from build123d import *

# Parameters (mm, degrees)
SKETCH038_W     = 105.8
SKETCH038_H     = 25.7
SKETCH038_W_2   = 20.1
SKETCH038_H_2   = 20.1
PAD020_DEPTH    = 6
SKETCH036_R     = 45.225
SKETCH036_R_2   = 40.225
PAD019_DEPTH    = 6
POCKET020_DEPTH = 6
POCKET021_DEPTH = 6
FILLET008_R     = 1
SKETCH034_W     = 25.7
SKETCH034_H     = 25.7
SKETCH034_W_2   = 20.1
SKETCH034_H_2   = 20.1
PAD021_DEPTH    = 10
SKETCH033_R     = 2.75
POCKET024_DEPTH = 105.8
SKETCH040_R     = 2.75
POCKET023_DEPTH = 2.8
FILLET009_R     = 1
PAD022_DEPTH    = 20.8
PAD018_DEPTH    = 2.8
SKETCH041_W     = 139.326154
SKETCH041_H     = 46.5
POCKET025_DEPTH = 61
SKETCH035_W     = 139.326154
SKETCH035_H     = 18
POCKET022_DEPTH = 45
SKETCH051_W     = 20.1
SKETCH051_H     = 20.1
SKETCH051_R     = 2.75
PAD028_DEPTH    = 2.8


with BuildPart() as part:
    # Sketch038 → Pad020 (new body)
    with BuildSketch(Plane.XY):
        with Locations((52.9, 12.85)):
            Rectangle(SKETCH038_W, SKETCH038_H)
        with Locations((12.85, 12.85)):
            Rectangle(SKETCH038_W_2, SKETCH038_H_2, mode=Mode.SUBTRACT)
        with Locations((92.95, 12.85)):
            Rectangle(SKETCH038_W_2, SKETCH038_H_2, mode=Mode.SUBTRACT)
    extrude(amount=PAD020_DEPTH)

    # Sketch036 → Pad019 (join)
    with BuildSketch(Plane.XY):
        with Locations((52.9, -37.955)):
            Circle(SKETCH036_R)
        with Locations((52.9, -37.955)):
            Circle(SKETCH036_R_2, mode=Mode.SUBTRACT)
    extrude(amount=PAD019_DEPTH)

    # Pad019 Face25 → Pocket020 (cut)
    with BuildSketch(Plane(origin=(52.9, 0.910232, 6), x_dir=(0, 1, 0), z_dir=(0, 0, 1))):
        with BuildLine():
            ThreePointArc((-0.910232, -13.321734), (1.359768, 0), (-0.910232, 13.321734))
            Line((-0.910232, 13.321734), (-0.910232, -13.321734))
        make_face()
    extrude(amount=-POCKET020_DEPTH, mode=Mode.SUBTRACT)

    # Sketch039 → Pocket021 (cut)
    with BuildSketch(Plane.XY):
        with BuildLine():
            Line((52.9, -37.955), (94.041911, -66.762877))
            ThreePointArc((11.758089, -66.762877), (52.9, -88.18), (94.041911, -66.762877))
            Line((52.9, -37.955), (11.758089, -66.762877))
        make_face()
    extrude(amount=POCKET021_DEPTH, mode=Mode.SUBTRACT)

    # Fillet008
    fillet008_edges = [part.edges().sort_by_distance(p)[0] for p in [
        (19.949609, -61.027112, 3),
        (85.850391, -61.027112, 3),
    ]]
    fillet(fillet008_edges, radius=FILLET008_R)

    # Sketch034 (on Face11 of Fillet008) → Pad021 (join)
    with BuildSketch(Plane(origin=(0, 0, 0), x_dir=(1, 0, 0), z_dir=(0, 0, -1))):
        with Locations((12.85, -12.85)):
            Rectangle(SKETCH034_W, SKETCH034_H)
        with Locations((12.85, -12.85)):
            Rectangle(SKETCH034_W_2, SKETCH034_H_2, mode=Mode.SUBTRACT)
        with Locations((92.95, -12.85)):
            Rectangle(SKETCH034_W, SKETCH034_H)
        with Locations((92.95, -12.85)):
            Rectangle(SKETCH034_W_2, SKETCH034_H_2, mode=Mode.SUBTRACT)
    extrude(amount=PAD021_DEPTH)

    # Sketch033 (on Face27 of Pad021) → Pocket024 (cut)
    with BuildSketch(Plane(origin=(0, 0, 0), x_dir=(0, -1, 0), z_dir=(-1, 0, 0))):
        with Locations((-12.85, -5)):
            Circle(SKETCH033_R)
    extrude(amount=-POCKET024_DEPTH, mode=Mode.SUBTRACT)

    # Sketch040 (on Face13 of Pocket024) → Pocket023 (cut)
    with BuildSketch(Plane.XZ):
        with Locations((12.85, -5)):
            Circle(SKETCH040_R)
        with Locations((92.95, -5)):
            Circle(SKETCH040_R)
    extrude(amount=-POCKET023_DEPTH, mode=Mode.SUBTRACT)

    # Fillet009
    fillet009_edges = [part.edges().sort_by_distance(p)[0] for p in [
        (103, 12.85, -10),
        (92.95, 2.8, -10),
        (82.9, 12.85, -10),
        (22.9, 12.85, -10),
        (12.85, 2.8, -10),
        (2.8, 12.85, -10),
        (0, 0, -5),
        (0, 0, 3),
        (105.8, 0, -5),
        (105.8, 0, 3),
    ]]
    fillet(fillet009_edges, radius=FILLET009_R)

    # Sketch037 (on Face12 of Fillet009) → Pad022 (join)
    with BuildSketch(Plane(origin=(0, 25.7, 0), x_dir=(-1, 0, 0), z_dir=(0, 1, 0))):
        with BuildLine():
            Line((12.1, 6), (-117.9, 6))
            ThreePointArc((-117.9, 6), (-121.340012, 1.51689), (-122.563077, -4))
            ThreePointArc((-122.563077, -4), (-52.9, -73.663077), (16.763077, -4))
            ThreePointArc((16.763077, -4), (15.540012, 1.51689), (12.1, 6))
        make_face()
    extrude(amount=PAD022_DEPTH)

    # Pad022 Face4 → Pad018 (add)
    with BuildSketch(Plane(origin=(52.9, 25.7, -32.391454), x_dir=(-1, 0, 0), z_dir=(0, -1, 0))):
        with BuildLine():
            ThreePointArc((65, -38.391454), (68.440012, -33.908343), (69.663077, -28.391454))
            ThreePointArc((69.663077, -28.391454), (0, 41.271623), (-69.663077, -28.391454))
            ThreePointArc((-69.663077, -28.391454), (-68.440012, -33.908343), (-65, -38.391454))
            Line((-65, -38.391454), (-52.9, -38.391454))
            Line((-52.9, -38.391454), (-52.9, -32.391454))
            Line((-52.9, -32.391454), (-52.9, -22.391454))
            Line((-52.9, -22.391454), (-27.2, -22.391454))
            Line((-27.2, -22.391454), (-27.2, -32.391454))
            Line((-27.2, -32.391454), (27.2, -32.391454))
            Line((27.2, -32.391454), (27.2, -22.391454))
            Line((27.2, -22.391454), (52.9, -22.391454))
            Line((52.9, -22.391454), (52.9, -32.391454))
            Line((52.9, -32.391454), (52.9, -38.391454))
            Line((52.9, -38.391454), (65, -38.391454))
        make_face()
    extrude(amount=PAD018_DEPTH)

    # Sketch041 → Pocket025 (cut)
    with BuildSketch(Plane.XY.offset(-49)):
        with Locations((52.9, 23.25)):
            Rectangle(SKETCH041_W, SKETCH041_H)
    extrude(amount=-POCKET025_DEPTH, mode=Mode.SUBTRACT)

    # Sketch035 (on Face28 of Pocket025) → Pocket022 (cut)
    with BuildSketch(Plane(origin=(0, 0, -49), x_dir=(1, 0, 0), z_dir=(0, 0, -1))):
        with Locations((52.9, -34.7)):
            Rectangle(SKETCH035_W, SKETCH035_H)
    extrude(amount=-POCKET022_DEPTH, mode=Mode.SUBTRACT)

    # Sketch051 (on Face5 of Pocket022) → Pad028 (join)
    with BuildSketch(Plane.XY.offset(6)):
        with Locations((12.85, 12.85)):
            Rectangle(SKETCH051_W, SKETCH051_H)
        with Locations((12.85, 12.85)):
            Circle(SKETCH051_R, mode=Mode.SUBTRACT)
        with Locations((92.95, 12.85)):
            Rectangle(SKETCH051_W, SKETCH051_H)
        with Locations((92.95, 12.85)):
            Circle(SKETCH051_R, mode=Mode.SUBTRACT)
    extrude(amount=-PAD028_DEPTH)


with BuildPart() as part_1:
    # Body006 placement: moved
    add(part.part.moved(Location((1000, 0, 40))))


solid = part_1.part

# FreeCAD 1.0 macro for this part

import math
import FreeCAD as App
import Part
import Sketcher

V = App.Vector
Q = App.Units.Quantity


def edges_at(feature, points):
    """Names of the edges that pass closest to the given points."""
    edges = feature.Shape.Edges
    near = lambda p: min(range(len(edges)), key=lambda i: edges[i].distToShape(Part.Vertex(*p))[0])
    return sorted({f"Edge{near(p) + 1}" for p in points})

doc = App.newDocument("Part")
body = doc.addObject("PartDesign::Body", "Body")

# Sketch on XY plane
sketch1 = body.newObject("Sketcher::SketchObject", "Sketch")
sketch1.AttachmentSupport = (doc.getObject("XY_Plane"), [""])
sketch1.MapMode = "FlatFace"
sketch1.addGeometry([
    Part.LineSegment(V(0, 26, 0), V(0, 0, 0)),  # 0
    Part.LineSegment(V(0, 0, 0), V(106, 0, 0)),  # 1
    Part.LineSegment(V(106, 0, 0), V(106, 26, 0)),  # 2
    Part.LineSegment(V(106, 26, 0), V(0, 26, 0)),  # 3
    Part.LineSegment(V(23, 3, 0), V(3, 3, 0)),  # 4
    Part.LineSegment(V(3, 3, 0), V(3, 23, 0)),  # 5
    Part.LineSegment(V(3, 23, 0), V(23, 23, 0)),  # 6
    Part.LineSegment(V(23, 23, 0), V(23, 3, 0)),  # 7
    Part.LineSegment(V(103, 3, 0), V(83, 3, 0)),  # 8
    Part.LineSegment(V(83, 3, 0), V(83, 23, 0)),  # 9
    Part.LineSegment(V(83, 23, 0), V(103, 23, 0)),  # 10
    Part.LineSegment(V(103, 23, 0), V(103, 3, 0)),  # 11
], False)
sketch1.addConstraint([
    Sketcher.Constraint("Coincident", 0, 2, 1, 1),
    Sketcher.Constraint("Coincident", 1, 2, 2, 1),
    Sketcher.Constraint("Coincident", 2, 2, 3, 1),
    Sketcher.Constraint("Coincident", 3, 2, 0, 1),
    Sketcher.Constraint("Coincident", 4, 2, 5, 1),
    Sketcher.Constraint("Coincident", 5, 2, 6, 1),
    Sketcher.Constraint("Coincident", 6, 2, 7, 1),
    Sketcher.Constraint("Coincident", 7, 2, 4, 1),
    Sketcher.Constraint("Coincident", 8, 2, 9, 1),
    Sketcher.Constraint("Coincident", 9, 2, 10, 1),
    Sketcher.Constraint("Coincident", 10, 2, 11, 1),
    Sketcher.Constraint("Coincident", 11, 2, 8, 1),
    Sketcher.Constraint("Vertical", 0),
    Sketcher.Constraint("Horizontal", 1),
    Sketcher.Constraint("Vertical", 2),
    Sketcher.Constraint("Horizontal", 3),
    Sketcher.Constraint("Horizontal", 4),
    Sketcher.Constraint("Vertical", 5),
    Sketcher.Constraint("Horizontal", 6),
    Sketcher.Constraint("Vertical", 7),
    Sketcher.Constraint("Horizontal", 8),
    Sketcher.Constraint("Vertical", 9),
    Sketcher.Constraint("Horizontal", 10),
    Sketcher.Constraint("Vertical", 11),
    Sketcher.Constraint("Coincident", 0, 2, -1, 1),
    Sketcher.Constraint("Horizontal", 7, 2, 8, 2),
    Sketcher.Constraint("Horizontal", 6, 2, 9, 2),
    Sketcher.Constraint("Equal", 6, 8),
    Sketcher.Constraint("Equal", 10, 5),
    Sketcher.Constraint("DistanceX", 1, 1, 1, 2, Q("105.8 mm")),
    Sketcher.Constraint("DistanceX", 4, 2, 4, 1, Q("20.1 mm")),
    Sketcher.Constraint("DistanceY", 0, 2, 0, 1, Q("25.7 mm")),
    Sketcher.Constraint("DistanceX", -1, 1, 10, 2, Q("103 mm")),
    Sketcher.Constraint("DistanceX", 4, 2, 1, 2, Q("103 mm")),
    Sketcher.Constraint("DistanceY", -1, 1, 4, 2, Q("2.8 mm")),
])
pad1 = body.newObject("PartDesign::Pad", "Pad")
pad1.Profile = sketch1
pad1.Length = 6

# Sketch on XY plane
sketch2 = body.newObject("Sketcher::SketchObject", "Sketch001")
sketch2.AttachmentSupport = (doc.getObject("XY_Plane"), [""])
sketch2.MapMode = "FlatFace"
sketch2.addGeometry([
    Part.Circle(V(53, -38, 0), V(0, 0, 1), 45),
    Part.Circle(V(53, -38, 0), V(0, 0, 1), 40),
], False)
sketch2.addConstraint([
    Sketcher.Constraint("Coincident", 1, 3, 0, 3),
    Sketcher.Constraint("Diameter", 0, Q("90.45 mm")),
    Sketcher.Constraint("Diameter", 1, Q("80.45 mm")),
    Sketcher.Constraint("DistanceX", -1, 1, 0, 3, Q("52.9 mm")),
    Sketcher.Constraint("DistanceY", 0, 3, -1, 1, Q("37.955 mm")),
])
pad2 = body.newObject("PartDesign::Pad", "Pad001")
pad2.Profile = sketch2
pad2.Length = 6

# Sketch on XY plane
sketch3 = body.newObject("Sketcher::SketchObject", "Sketch002")
sketch3.AttachmentSupport = (doc.getObject("XY_Plane"), [""])
sketch3.MapMode = "FlatFace"
sketch3.AttachmentOffset = App.Placement(V(0, 0, 6), App.Rotation())
sketch3.addGeometry([
    Part.ArcOfCircle(Part.Circle(V(53, -38, 0), V(0, 0, 1), 40), math.radians(71), math.radians(109)),
    Part.LineSegment(V(40, 0, 0), V(66, 0, 0)),
], False)
sketch3.addConstraint([
    Sketcher.Constraint("Coincident", 0, 1, 1, 2),
    Sketcher.Constraint("Coincident", 1, 1, 0, 2),
    Sketcher.Constraint("Horizontal", 1),
    Sketcher.Constraint("PointOnObject", 0, 1, -1),
    Sketcher.Constraint("Radius", 0, Q("40.224999 mm")),
    Sketcher.Constraint("DistanceX", -1, 1, 0, 3, Q("52.9 mm")),
    Sketcher.Constraint("DistanceY", 0, 3, -1, 1, Q("37.954999 mm")),
])
pocket1 = body.newObject("PartDesign::Pocket", "Pocket")
pocket1.Profile = sketch3
pocket1.Length = 6

# Sketch on XY plane
sketch4 = body.newObject("Sketcher::SketchObject", "Sketch003")
sketch4.AttachmentSupport = (doc.getObject("XY_Plane"), [""])
sketch4.MapMode = "FlatFace"
sketch4.addGeometry([
    Part.LineSegment(V(94, -67, 0), V(53, -38, 0)),
    Part.LineSegment(V(53, -38, 0), V(12, -67, 0)),
    Part.ArcOfCircle(Part.Circle(V(53, -38, 0), V(0, 0, 1), 50), math.radians(-145), math.radians(-35)),
], False)
sketch4.addConstraint([
    Sketcher.Constraint("Coincident", 0, 2, 1, 1),
    Sketcher.Constraint("Coincident", 1, 2, 2, 1),
    Sketcher.Constraint("Coincident", 2, 2, 0, 1),
    Sketcher.Constraint("Coincident", 0, 2, 2, 3),
    Sketcher.Constraint("Horizontal", 1, 2, 2, 2),
    Sketcher.Constraint("Angle", 0, Q("144.999999 deg")),
    Sketcher.Constraint("Radius", 2, Q("50.225 mm")),
    Sketcher.Constraint("DistanceX", -1, 1, 2, 3, Q("52.9 mm")),
    Sketcher.Constraint("DistanceY", 2, 3, -1, 1, Q("37.955 mm")),
])
pocket2 = body.newObject("PartDesign::Pocket", "Pocket001")
pocket2.Profile = sketch4
pocket2.Length = 6
pocket2.Reversed = True
doc.recompute()

fillet = body.newObject("PartDesign::Fillet", "Fillet")
fillet.Base = (pocket2, edges_at(pocket2, [(19.95, -61.027, 3), (85.85, -61.027, 3)]))
fillet.Radius = 1

# Sketch on XY plane
sketch5 = body.newObject("Sketcher::SketchObject", "Sketch004")
sketch5.AttachmentSupport = (doc.getObject("XY_Plane"), [""])
sketch5.MapMode = "FlatFace"
sketch5.addGeometry([
    Part.LineSegment(V(0, 0, 0), V(0, 26, 0)),  # 0
    Part.LineSegment(V(0, 26, 0), V(26, 26, 0)),  # 1
    Part.LineSegment(V(26, 26, 0), V(26, 0, 0)),  # 2
    Part.LineSegment(V(26, 0, 0), V(0, 0, 0)),  # 3
    Part.LineSegment(V(23, 23, 0), V(3, 23, 0)),  # 4
    Part.LineSegment(V(3, 23, 0), V(3, 3, 0)),  # 5
    Part.LineSegment(V(3, 3, 0), V(23, 3, 0)),  # 6
    Part.LineSegment(V(23, 3, 0), V(23, 23, 0)),  # 7
    Part.LineSegment(V(80, 0, 0), V(80, 26, 0)),  # 8
    Part.LineSegment(V(80, 26, 0), V(106, 26, 0)),  # 9
    Part.LineSegment(V(106, 26, 0), V(106, 0, 0)),  # 10
    Part.LineSegment(V(106, 0, 0), V(80, 0, 0)),  # 11
    Part.LineSegment(V(103, 23, 0), V(83, 23, 0)),  # 12
    Part.LineSegment(V(83, 23, 0), V(83, 3, 0)),  # 13
    Part.LineSegment(V(83, 3, 0), V(103, 3, 0)),  # 14
    Part.LineSegment(V(103, 3, 0), V(103, 23, 0)),  # 15
], False)
sketch5.addConstraint([
    Sketcher.Constraint("Coincident", 0, 2, 1, 1),
    Sketcher.Constraint("Coincident", 1, 2, 2, 1),
    Sketcher.Constraint("Coincident", 2, 2, 3, 1),
    Sketcher.Constraint("Coincident", 3, 2, 0, 1),
    Sketcher.Constraint("Coincident", 4, 2, 5, 1),
    Sketcher.Constraint("Coincident", 5, 2, 6, 1),
    Sketcher.Constraint("Coincident", 6, 2, 7, 1),
    Sketcher.Constraint("Coincident", 7, 2, 4, 1),
    Sketcher.Constraint("Coincident", 8, 2, 9, 1),
    Sketcher.Constraint("Coincident", 9, 2, 10, 1),
    Sketcher.Constraint("Coincident", 10, 2, 11, 1),
    Sketcher.Constraint("Coincident", 11, 2, 8, 1),
    Sketcher.Constraint("Coincident", 12, 2, 13, 1),
    Sketcher.Constraint("Coincident", 13, 2, 14, 1),
    Sketcher.Constraint("Coincident", 14, 2, 15, 1),
    Sketcher.Constraint("Coincident", 15, 2, 12, 1),
    Sketcher.Constraint("Vertical", 0),
    Sketcher.Constraint("Horizontal", 1),
    Sketcher.Constraint("Vertical", 2),
    Sketcher.Constraint("Horizontal", 3),
    Sketcher.Constraint("Horizontal", 4),
    Sketcher.Constraint("Vertical", 5),
    Sketcher.Constraint("Horizontal", 6),
    Sketcher.Constraint("Vertical", 7),
    Sketcher.Constraint("Vertical", 8),
    Sketcher.Constraint("Horizontal", 9),
    Sketcher.Constraint("Vertical", 10),
    Sketcher.Constraint("Horizontal", 11),
    Sketcher.Constraint("Horizontal", 12),
    Sketcher.Constraint("Vertical", 13),
    Sketcher.Constraint("Horizontal", 14),
    Sketcher.Constraint("Vertical", 15),
    Sketcher.Constraint("Coincident", 3, 2, -1, 1),
    Sketcher.Constraint("PointOnObject", 10, 2, -1),
    Sketcher.Constraint("Horizontal", 1, 2, 8, 2),
    Sketcher.Constraint("Horizontal", 7, 2, 12, 2),
    Sketcher.Constraint("Horizontal", 6, 2, 13, 2),
    Sketcher.Constraint("Equal", 3, 9),
    Sketcher.Constraint("Equal", 6, 12),
    Sketcher.Constraint("Equal", 11, 0),
    Sketcher.Constraint("Equal", 14, 5),
    Sketcher.Constraint("DistanceX", 1, 1, 1, 2, Q("25.7 mm")),
    Sketcher.Constraint("DistanceX", 4, 2, 4, 1, Q("20.1 mm")),
    Sketcher.Constraint("DistanceX", -1, 1, 14, 2, Q("103 mm")),
    Sketcher.Constraint("DistanceX", -1, 1, 4, 2, Q("2.8 mm")),
    Sketcher.Constraint("DistanceY", -1, 1, 4, 2, Q("22.9 mm")),
    Sketcher.Constraint("DistanceX", -1, 1, 8, 2, Q("80.1 mm")),
])
pad3 = body.newObject("PartDesign::Pad", "Pad002")
pad3.Profile = sketch5
pad3.Length = 10
pad3.Reversed = True

# Sketch on YZ plane
sketch6 = body.newObject("Sketcher::SketchObject", "Sketch005")
sketch6.AttachmentSupport = (doc.getObject("YZ_Plane"), [""])
sketch6.MapMode = "FlatFace"
sketch6.addGeometry(Part.Circle(V(12.8, -5, 0), V(0, 0, 1), 2.8), False)
sketch6.addConstraint([
    Sketcher.Constraint("Diameter", 0, Q("5.5 mm")),
    Sketcher.Constraint("DistanceY", 0, 3, -1, 1, Q("5 mm")),
    Sketcher.Constraint("DistanceX", -1, 1, 0, 3, Q("12.85 mm")),
])
pocket3 = body.newObject("PartDesign::Pocket", "Pocket002")
pocket3.Profile = sketch6
pocket3.Length = 105.8
pocket3.Reversed = True

# Sketch on XZ plane
sketch7 = body.newObject("Sketcher::SketchObject", "Sketch006")
sketch7.AttachmentSupport = (doc.getObject("XZ_Plane"), [""])
sketch7.MapMode = "FlatFace"
sketch7.addGeometry([
    Part.Circle(V(12.8, -5, 0), V(0, 0, 1), 2.8),
    Part.Circle(V(93, -5, 0), V(0, 0, 1), 2.8),
], False)
sketch7.addConstraint([
    Sketcher.Constraint("Equal", 0, 1),
    Sketcher.Constraint("Horizontal", 0, 3, 1, 3),
    Sketcher.Constraint("Diameter", 0, Q("5.5 mm")),
    Sketcher.Constraint("DistanceY", 0, 3, -1, 1, Q("5 mm")),
    Sketcher.Constraint("DistanceX", 0, 3, 1, 3, Q("80.1 mm")),
    Sketcher.Constraint("DistanceX", -1, 1, 0, 3, Q("12.85 mm")),
])
pocket4 = body.newObject("PartDesign::Pocket", "Pocket003")
pocket4.Profile = sketch7
pocket4.Length = 2.8
doc.recompute()

fillet2 = body.newObject("PartDesign::Fillet", "Fillet001")
fillet2.Base = (pocket4, edges_at(pocket4, [
    (103, 12.85, -10),
    (92.95, 2.8, -10),
    (82.9, 12.85, -10),
    (22.9, 12.85, -10),
    (12.85, 2.8, -10),
    (2.8, 12.85, -10),
    (0, 0, -2),
    (0, 0, -2),
    (105.8, 0, -2),
    (105.8, 0, -2),
]))
fillet2.Radius = 1

# Sketch on XZ plane
sketch8 = body.newObject("Sketcher::SketchObject", "Sketch007")
sketch8.AttachmentSupport = (doc.getObject("XZ_Plane"), [""])
sketch8.MapMode = "FlatFace"
sketch8.AttachmentOffset = App.Placement(V(0, 0, -25.7), App.Rotation())
sketch8.addGeometry([
    Part.LineSegment(V(-12, 6, 0), V(118, 6, 0)),
    Part.ArcOfCircle(Part.Circle(V(110, -4, 0), V(0, 0, 1), 13), math.radians(0), math.radians(50)),
    Part.ArcOfCircle(Part.Circle(V(53, -4, 0), V(0, 0, 1), 70), math.radians(180), math.radians(360)),
    Part.ArcOfCircle(Part.Circle(V(-4, -4, 0), V(0, 0, 1), 13), math.radians(130), math.radians(180)),
], False)
sketch8.addConstraint([
    Sketcher.Constraint("Coincident", 0, 2, 1, 2),
    Sketcher.Constraint("Tangent", 1, 1, 2, 2),
    Sketcher.Constraint("Tangent", 2, 1, 3, 2),
    Sketcher.Constraint("Coincident", 3, 1, 0, 1),
    Sketcher.Constraint("Horizontal", 0),
    Sketcher.Constraint("Equal", 1, 3),
    Sketcher.Constraint("Horizontal", 1, 3, 2, 3),
    Sketcher.Constraint("Horizontal", 2, 3, 3, 3),
    Sketcher.Constraint("DistanceX", 0, 1, 0, 2, Q("130 mm")),
    Sketcher.Constraint("DistanceY", 1, 3, -1, 1, Q("3.999999 mm")),
    Sketcher.Constraint("DistanceY", -1, 1, 0, 2, Q("6 mm")),
    Sketcher.Constraint("DistanceX", -1, 1, 2, 3, Q("52.9 mm")),
    Sketcher.Constraint("Radius", 1, Q("13.05407 mm")),
])
pad4 = body.newObject("PartDesign::Pad", "Pad003")
pad4.Profile = sketch8
pad4.Length = 20.8
pad4.Reversed = True

# Sketch on XZ plane
sketch9 = body.newObject("Sketcher::SketchObject", "Sketch008")
sketch9.AttachmentSupport = (doc.getObject("XZ_Plane"), [""])
sketch9.MapMode = "FlatFace"
sketch9.AttachmentOffset = App.Placement(V(0, 0, -25.7), App.Rotation())
sketch9.addGeometry([
    Part.ArcOfCircle(Part.Circle(V(-4, -4, 0), V(0, 0, 1), 13), math.radians(130), math.radians(180)),  # 0
    Part.ArcOfCircle(Part.Circle(V(53, -4, 0), V(0, 0, 1), 70), math.radians(180), math.radians(360)),  # 1
    Part.ArcOfCircle(Part.Circle(V(110, -4, 0), V(0, 0, 1), 13), math.radians(0), math.radians(50)),  # 2
    Part.LineSegment(V(118, 6, 0), V(106, 6, 0)),  # 3
    Part.LineSegment(V(106, 6, 0), V(106, -10, 0)),  # 4
    Part.LineSegment(V(106, -10, 0), V(80, -10, 0)),  # 5
    Part.LineSegment(V(80, -10, 0), V(80, 0, 0)),  # 6
    Part.LineSegment(V(80, 0, 0), V(26, 0, 0)),  # 7
    Part.LineSegment(V(26, 0, 0), V(26, -10, 0)),  # 8
    Part.LineSegment(V(26, -10, 0), V(0, -10, 0)),  # 9
    Part.LineSegment(V(0, -10, 0), V(0, 6, 0)),  # 10
    Part.LineSegment(V(0, 6, 0), V(-12, 6, 0)),  # 11
], False)
sketch9.addConstraint([
    Sketcher.Constraint("Tangent", 0, 2, 1, 1),
    Sketcher.Constraint("Tangent", 1, 2, 2, 1),
    Sketcher.Constraint("Coincident", 2, 2, 3, 1),
    Sketcher.Constraint("Coincident", 3, 2, 4, 1),
    Sketcher.Constraint("Coincident", 4, 2, 5, 1),
    Sketcher.Constraint("Coincident", 5, 2, 6, 1),
    Sketcher.Constraint("Coincident", 6, 2, 7, 1),
    Sketcher.Constraint("Coincident", 7, 2, 8, 1),
    Sketcher.Constraint("Coincident", 8, 2, 9, 1),
    Sketcher.Constraint("Coincident", 9, 2, 10, 1),
    Sketcher.Constraint("Coincident", 10, 2, 11, 1),
    Sketcher.Constraint("Coincident", 11, 2, 0, 1),
    Sketcher.Constraint("Horizontal", 3),
    Sketcher.Constraint("Vertical", 4),
    Sketcher.Constraint("Horizontal", 5),
    Sketcher.Constraint("Vertical", 6),
    Sketcher.Constraint("Horizontal", 7),
    Sketcher.Constraint("Vertical", 8),
    Sketcher.Constraint("Horizontal", 9),
    Sketcher.Constraint("Vertical", 10),
    Sketcher.Constraint("Horizontal", 11),
    Sketcher.Constraint("Equal", 0, 2),
    Sketcher.Constraint("PointOnObject", 6, 2, -1),
    Sketcher.Constraint("PointOnObject", 9, 2, -2),
    Sketcher.Constraint("Horizontal", 0, 3, 1, 3),
    Sketcher.Constraint("Horizontal", 1, 3, 2, 3),
    Sketcher.Constraint("Horizontal", 5, 2, 8, 2),
    Sketcher.Constraint("Horizontal", 3, 2, 10, 2),
    Sketcher.Constraint("Equal", 5, 9),
    Sketcher.Constraint("Equal", 3, 11),
    Sketcher.Constraint("DistanceY", 4, 2, 4, 1, Q("16 mm")),
    Sketcher.Constraint("DistanceY", 6, 1, 6, 2, Q("10 mm")),
    Sketcher.Constraint("DistanceX", 3, 2, 3, 1, Q("12.1 mm")),
    Sketcher.Constraint("DistanceX", 5, 2, 5, 1, Q("25.7 mm")),
    Sketcher.Constraint("DistanceX", 7, 2, 7, 1, Q("54.4 mm")),
    Sketcher.Constraint("DistanceY", 0, 3, -1, 1, Q("4.000001 mm")),
    Sketcher.Constraint("Radius", 0, Q("13.054074 mm")),
])
pad5 = body.newObject("PartDesign::Pad", "Pad004")
pad5.Profile = sketch9
pad5.Length = 2.8

# Sketch on XY plane
sketch10 = body.newObject("Sketcher::SketchObject", "Sketch009")
sketch10.AttachmentSupport = (doc.getObject("XY_Plane"), [""])
sketch10.MapMode = "FlatFace"
sketch10.AttachmentOffset = App.Placement(V(0, 0, -49), App.Rotation())
sketch10.addGeometry([
    Part.LineSegment(V(-17, 46, 0), V(-17, 0, 0)),
    Part.LineSegment(V(-17, 0, 0), V(123, 0, 0)),
    Part.LineSegment(V(123, 0, 0), V(123, 46, 0)),
    Part.LineSegment(V(123, 46, 0), V(-17, 46, 0)),
], False)
sketch10.addConstraint([
    Sketcher.Constraint("Coincident", 0, 2, 1, 1),
    Sketcher.Constraint("Coincident", 1, 2, 2, 1),
    Sketcher.Constraint("Coincident", 2, 2, 3, 1),
    Sketcher.Constraint("Coincident", 3, 2, 0, 1),
    Sketcher.Constraint("Vertical", 0),
    Sketcher.Constraint("Horizontal", 1),
    Sketcher.Constraint("Vertical", 2),
    Sketcher.Constraint("Horizontal", 3),
    Sketcher.Constraint("PointOnObject", 0, 2, -1),
    Sketcher.Constraint("DistanceY", 0, 2, 0, 1, Q("46.5 mm")),
    Sketcher.Constraint("DistanceX", 1, 1, 1, 2, Q("139.326154 mm")),
    Sketcher.Constraint("DistanceX", 0, 2, -1, 1, Q("16.763077 mm")),
])
pocket5 = body.newObject("PartDesign::Pocket", "Pocket004")
pocket5.Profile = sketch10
pocket5.Length = 61

# Sketch on XY plane
sketch11 = body.newObject("Sketcher::SketchObject", "Sketch010")
sketch11.AttachmentSupport = (doc.getObject("XY_Plane"), [""])
sketch11.MapMode = "FlatFace"
sketch11.AttachmentOffset = App.Placement(V(0, 0, -49), App.Rotation())
sketch11.addGeometry([
    Part.LineSegment(V(-17, 26, 0), V(-17, 44, 0)),
    Part.LineSegment(V(-17, 44, 0), V(123, 44, 0)),
    Part.LineSegment(V(123, 44, 0), V(123, 26, 0)),
    Part.LineSegment(V(123, 26, 0), V(-17, 26, 0)),
], False)
sketch11.addConstraint([
    Sketcher.Constraint("Coincident", 0, 2, 1, 1),
    Sketcher.Constraint("Coincident", 1, 2, 2, 1),
    Sketcher.Constraint("Coincident", 2, 2, 3, 1),
    Sketcher.Constraint("Coincident", 3, 2, 0, 1),
    Sketcher.Constraint("Vertical", 0),
    Sketcher.Constraint("Horizontal", 1),
    Sketcher.Constraint("Vertical", 2),
    Sketcher.Constraint("Horizontal", 3),
    Sketcher.Constraint("DistanceY", 0, 1, 0, 2, Q("18 mm")),
    Sketcher.Constraint("DistanceY", -1, 1, 0, 2, Q("43.7 mm")),
    Sketcher.Constraint("DistanceX", 1, 1, 1, 2, Q("139.326154 mm")),
    Sketcher.Constraint("DistanceX", 0, 2, -1, 1, Q("16.763077 mm")),
])
pocket6 = body.newObject("PartDesign::Pocket", "Pocket005")
pocket6.Profile = sketch11
pocket6.Length = 45
pocket6.Reversed = True

# Sketch on XY plane
sketch12 = body.newObject("Sketcher::SketchObject", "Sketch011")
sketch12.AttachmentSupport = (doc.getObject("XY_Plane"), [""])
sketch12.MapMode = "FlatFace"
sketch12.AttachmentOffset = App.Placement(V(0, 0, 6), App.Rotation())
sketch12.addGeometry([
    Part.LineSegment(V(2.8, 22.9, 0), V(2.8, 2.8, 0)),  # 0
    Part.LineSegment(V(2.8, 2.8, 0), V(22.9, 2.8, 0)),  # 1
    Part.LineSegment(V(22.9, 2.8, 0), V(22.9, 22.9, 0)),  # 2
    Part.LineSegment(V(22.9, 22.9, 0), V(2.8, 22.9, 0)),  # 3
    Part.Circle(V(12.8, 12.8, 0), V(0, 0, 1), 2.8),  # 4
    Part.LineSegment(V(82.9, 22.9, 0), V(82.9, 2.8, 0)),  # 5
    Part.LineSegment(V(82.9, 2.8, 0), V(103, 2.8, 0)),  # 6
    Part.LineSegment(V(103, 2.8, 0), V(103, 22.9, 0)),  # 7
    Part.LineSegment(V(103, 22.9, 0), V(82.9, 22.9, 0)),  # 8
    Part.Circle(V(93, 12.8, 0), V(0, 0, 1), 2.8),  # 9
], False)
sketch12.addConstraint([
    Sketcher.Constraint("Coincident", 0, 2, 1, 1),
    Sketcher.Constraint("Coincident", 1, 2, 2, 1),
    Sketcher.Constraint("Coincident", 2, 2, 3, 1),
    Sketcher.Constraint("Coincident", 3, 2, 0, 1),
    Sketcher.Constraint("Coincident", 5, 2, 6, 1),
    Sketcher.Constraint("Coincident", 6, 2, 7, 1),
    Sketcher.Constraint("Coincident", 7, 2, 8, 1),
    Sketcher.Constraint("Coincident", 8, 2, 5, 1),
    Sketcher.Constraint("Vertical", 0),
    Sketcher.Constraint("Horizontal", 1),
    Sketcher.Constraint("Vertical", 2),
    Sketcher.Constraint("Horizontal", 3),
    Sketcher.Constraint("Vertical", 5),
    Sketcher.Constraint("Horizontal", 6),
    Sketcher.Constraint("Vertical", 7),
    Sketcher.Constraint("Horizontal", 8),
    Sketcher.Constraint("Equal", 4, 9),
    Sketcher.Constraint("Horizontal", 4, 3, 9, 3),
    Sketcher.Constraint("Horizontal", 1, 2, 5, 2),
    Sketcher.Constraint("Horizontal", 3, 2, 7, 2),
    Sketcher.Constraint("Equal", 3, 6),
    Sketcher.Constraint("Equal", 8, 0),
    Sketcher.Constraint("Diameter", 4, Q("5.5 mm")),
    Sketcher.Constraint("DistanceX", 1, 1, 1, 2, Q("20.1 mm")),
    Sketcher.Constraint("DistanceX", -1, 1, 6, 2, Q("103 mm")),
    Sketcher.Constraint("DistanceX", 1, 2, 5, 2, Q("60 mm")),
    Sketcher.Constraint("DistanceY", -1, 1, 0, 2, Q("2.8 mm")),
    Sketcher.Constraint("DistanceX", 4, 3, 9, 3, Q("80.1 mm")),
    Sketcher.Constraint("DistanceX", -1, 1, 4, 3, Q("12.85 mm")),
    Sketcher.Constraint("DistanceY", -1, 1, 4, 3, Q("12.85 mm")),
])
pad6 = body.newObject("PartDesign::Pad", "Pad005")
pad6.Profile = sketch12
pad6.Length = 2.8
pad6.Reversed = True
body2 = doc.addObject("PartDesign::Body", "Body001")
doc.recompute()

body.Placement = App.Placement(V(1000, 0, 40), App.Rotation(V(0, 0, 1), 0))
boolean = body2.newObject("PartDesign::Boolean", "Boolean")
boolean.Type = "Fuse"
boolean.addObjects([body])

doc.recompute()
